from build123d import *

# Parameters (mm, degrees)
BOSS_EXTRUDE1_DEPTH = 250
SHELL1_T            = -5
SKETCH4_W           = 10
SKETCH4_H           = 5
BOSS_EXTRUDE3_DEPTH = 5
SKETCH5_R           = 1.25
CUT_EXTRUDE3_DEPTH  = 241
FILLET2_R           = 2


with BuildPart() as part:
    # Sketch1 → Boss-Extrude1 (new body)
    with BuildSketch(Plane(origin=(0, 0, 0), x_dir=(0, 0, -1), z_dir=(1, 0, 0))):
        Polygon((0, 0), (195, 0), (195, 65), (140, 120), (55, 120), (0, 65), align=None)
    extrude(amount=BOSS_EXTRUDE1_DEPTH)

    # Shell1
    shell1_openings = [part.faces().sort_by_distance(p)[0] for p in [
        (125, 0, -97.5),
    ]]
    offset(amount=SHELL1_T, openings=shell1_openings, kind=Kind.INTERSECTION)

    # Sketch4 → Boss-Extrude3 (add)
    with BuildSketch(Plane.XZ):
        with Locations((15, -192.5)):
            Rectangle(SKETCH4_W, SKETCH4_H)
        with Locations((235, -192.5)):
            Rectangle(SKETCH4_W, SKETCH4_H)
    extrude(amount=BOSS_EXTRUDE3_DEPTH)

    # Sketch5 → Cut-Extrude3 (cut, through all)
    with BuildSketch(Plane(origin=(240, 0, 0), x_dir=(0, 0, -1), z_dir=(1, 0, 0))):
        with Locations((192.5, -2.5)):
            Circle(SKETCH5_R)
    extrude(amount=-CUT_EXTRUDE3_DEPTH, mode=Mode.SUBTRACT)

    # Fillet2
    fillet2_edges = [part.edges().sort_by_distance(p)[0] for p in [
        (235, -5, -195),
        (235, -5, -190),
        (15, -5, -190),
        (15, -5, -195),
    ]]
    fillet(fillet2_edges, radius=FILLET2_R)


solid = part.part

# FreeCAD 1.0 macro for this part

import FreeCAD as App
import Part
import Sketcher

V = App.Vector
Q = App.Units.Quantity


def edges_at(feature, points):
    """Names of the edges that pass closest to the given points."""
    edges = feature.Shape.Edges
    near = lambda p: min(range(len(edges)), key=lambda i: edges[i].distToShape(Part.Vertex(*p))[0])
    return sorted({f"Edge{near(p) + 1}" for p in points})


def faces_at(feature, points):
    """Names of the faces that lie closest to the given points."""
    faces = feature.Shape.Faces
    near = lambda p: min(range(len(faces)), key=lambda i: faces[i].distToShape(Part.Vertex(*p))[0])
    return sorted({f"Face{near(p) + 1}" for p in points})

doc = App.newDocument("Part")
body = doc.addObject("PartDesign::Body", "Body")

sketch1 = doc.addObject("Sketcher::SketchObject", "Sketch")
body.addObject(sketch1)
sketch1.AttachmentSupport = (doc.YZ_Plane, [""])
sketch1.MapMode = "FlatFace"
sketch1.addGeometry(Part.LineSegment(V(0, 0, 0), V(0, -195, 0)), False)
sketch1.addGeometry(Part.LineSegment(V(0, -195, 0), V(65, -195, 0)), False)
sketch1.addGeometry(Part.LineSegment(V(65, -195, 0), V(120, -140, 0)), False)
sketch1.addGeometry(Part.LineSegment(V(120, -140, 0), V(120, -55, 0)), False)
sketch1.addGeometry(Part.LineSegment(V(120, -55, 0), V(65, 0, 0)), False)
sketch1.addGeometry(Part.LineSegment(V(65, 0, 0), V(0, 0, 0)), False)
sketch1.addConstraint(Sketcher.Constraint("Coincident", 0, 2, 1, 1))
sketch1.addConstraint(Sketcher.Constraint("Coincident", 1, 2, 2, 1))
sketch1.addConstraint(Sketcher.Constraint("Coincident", 2, 2, 3, 1))
sketch1.addConstraint(Sketcher.Constraint("Coincident", 3, 2, 4, 1))
sketch1.addConstraint(Sketcher.Constraint("Coincident", 4, 2, 5, 1))
sketch1.addConstraint(Sketcher.Constraint("Coincident", 5, 2, 0, 1))
sketch1.addConstraint(Sketcher.Constraint("Vertical", 0))
sketch1.addConstraint(Sketcher.Constraint("Horizontal", 1))
sketch1.addConstraint(Sketcher.Constraint("Vertical", 3))
sketch1.addConstraint(Sketcher.Constraint("Horizontal", 5))
sketch1.addConstraint(Sketcher.Constraint("Coincident", 5, 2, -1, 1))
sketch1.addConstraint(Sketcher.Constraint("Perpendicular", 2, 4))
sketch1.addConstraint(Sketcher.Constraint("Vertical", 1, 2, 4, 2))
sketch1.addConstraint(Sketcher.Constraint("Equal", 2, 4))
sketch1.addConstraint(Sketcher.Constraint("DistanceX", 1, 1, 1, 2, Q("65 mm")))
sketch1.addConstraint(Sketcher.Constraint("DistanceY", 0, 2, 0, 1, Q("195 mm")))
sketch1.addConstraint(Sketcher.Constraint("DistanceY", 3, 1, 3, 2, Q("85 mm")))
pad1 = doc.addObject("PartDesign::Pad", "Pad")
body.addObject(pad1)
pad1.Profile = sketch1
pad1.Length = 250
doc.recompute()

thickness = doc.addObject("PartDesign::Thickness", "Thickness")
body.addObject(thickness)
thickness.Base = (pad1, faces_at(pad1, [(125, 0, -97.5)]))
thickness.Value = 5
thickness.Reversed = True
thickness.Join = "Intersection"

sketch2 = doc.addObject("Sketcher::SketchObject", "Sketch001")
body.addObject(sketch2)
sketch2.AttachmentSupport = (doc.XZ_Plane, [""])
sketch2.MapMode = "FlatFace"
sketch2.addGeometry(Part.LineSegment(V(10, -190, 0), V(10, -195, 0)), False)
sketch2.addGeometry(Part.LineSegment(V(10, -195, 0), V(20, -195, 0)), False)
sketch2.addGeometry(Part.LineSegment(V(20, -195, 0), V(20, -190, 0)), False)
sketch2.addGeometry(Part.LineSegment(V(20, -190, 0), V(10, -190, 0)), False)
sketch2.addGeometry(Part.LineSegment(V(230, -190, 0), V(230, -195, 0)), False)
sketch2.addGeometry(Part.LineSegment(V(230, -195, 0), V(240, -195, 0)), False)
sketch2.addGeometry(Part.LineSegment(V(240, -195, 0), V(240, -190, 0)), False)
sketch2.addGeometry(Part.LineSegment(V(240, -190, 0), V(230, -190, 0)), False)
sketch2.addConstraint(Sketcher.Constraint("Coincident", 0, 2, 1, 1))
sketch2.addConstraint(Sketcher.Constraint("Coincident", 1, 2, 2, 1))
sketch2.addConstraint(Sketcher.Constraint("Coincident", 2, 2, 3, 1))
sketch2.addConstraint(Sketcher.Constraint("Coincident", 3, 2, 0, 1))
sketch2.addConstraint(Sketcher.Constraint("Coincident", 4, 2, 5, 1))
sketch2.addConstraint(Sketcher.Constraint("Coincident", 5, 2, 6, 1))
sketch2.addConstraint(Sketcher.Constraint("Coincident", 6, 2, 7, 1))
sketch2.addConstraint(Sketcher.Constraint("Coincident", 7, 2, 4, 1))
sketch2.addConstraint(Sketcher.Constraint("Vertical", 0))
sketch2.addConstraint(Sketcher.Constraint("Horizontal", 1))
sketch2.addConstraint(Sketcher.Constraint("Vertical", 2))
sketch2.addConstraint(Sketcher.Constraint("Horizontal", 3))
sketch2.addConstraint(Sketcher.Constraint("Vertical", 4))
sketch2.addConstraint(Sketcher.Constraint("Horizontal", 5))
sketch2.addConstraint(Sketcher.Constraint("Vertical", 6))
sketch2.addConstraint(Sketcher.Constraint("Horizontal", 7))
sketch2.addConstraint(Sketcher.Constraint("Horizontal", 1, 2, 4, 2))
sketch2.addConstraint(Sketcher.Constraint("Horizontal", 3, 2, 6, 2))
sketch2.addConstraint(Sketcher.Constraint("Equal", 3, 5))
sketch2.addConstraint(Sketcher.Constraint("DistanceX", 1, 1, 1, 2, Q("10 mm")))
sketch2.addConstraint(Sketcher.Constraint("DistanceY", 0, 2, 0, 1, Q("5 mm")))
sketch2.addConstraint(Sketcher.Constraint("DistanceX", -1, 1, 0, 2, Q("10 mm")))
sketch2.addConstraint(Sketcher.Constraint("DistanceY", 0, 2, -1, 1, Q("195 mm")))
sketch2.addConstraint(Sketcher.Constraint("DistanceX", -1, 1, 4, 2, Q("230 mm")))
pad2 = doc.addObject("PartDesign::Pad", "Pad001")
body.addObject(pad2)
pad2.Profile = sketch2
pad2.Length = 5

sketch3 = doc.addObject("Sketcher::SketchObject", "Sketch002")
body.addObject(sketch3)
sketch3.AttachmentSupport = (doc.YZ_Plane, [""])
sketch3.MapMode = "FlatFace"
sketch3.AttachmentOffset = App.Placement(V(0, 0, 240), App.Rotation())
sketch3.addGeometry(Part.Circle(V(-2.5, -192.5, 0), V(0, 0, 1), 1.2), False)
sketch3.addConstraint(Sketcher.Constraint("Diameter", 0, Q("2.5 mm")))
sketch3.addConstraint(Sketcher.Constraint("DistanceX", 0, 3, -1, 1, Q("2.5 mm")))
sketch3.addConstraint(Sketcher.Constraint("DistanceY", 0, 3, -1, 1, Q("192.5 mm")))
pocket1 = doc.addObject("PartDesign::Pocket", "Pocket")
body.addObject(pocket1)
pocket1.Profile = sketch3
pocket1.Type = "ThroughAll"
doc.recompute()

fillet = doc.addObject("PartDesign::Fillet", "Fillet")
body.addObject(fillet)
fillet.Base = (pocket1, edges_at(pocket1, [
    (235, -5, -195),
    (235, -5, -190),
    (15, -5, -190),
    (15, -5, -195),
]))
fillet.Radius = 2

doc.recompute()
